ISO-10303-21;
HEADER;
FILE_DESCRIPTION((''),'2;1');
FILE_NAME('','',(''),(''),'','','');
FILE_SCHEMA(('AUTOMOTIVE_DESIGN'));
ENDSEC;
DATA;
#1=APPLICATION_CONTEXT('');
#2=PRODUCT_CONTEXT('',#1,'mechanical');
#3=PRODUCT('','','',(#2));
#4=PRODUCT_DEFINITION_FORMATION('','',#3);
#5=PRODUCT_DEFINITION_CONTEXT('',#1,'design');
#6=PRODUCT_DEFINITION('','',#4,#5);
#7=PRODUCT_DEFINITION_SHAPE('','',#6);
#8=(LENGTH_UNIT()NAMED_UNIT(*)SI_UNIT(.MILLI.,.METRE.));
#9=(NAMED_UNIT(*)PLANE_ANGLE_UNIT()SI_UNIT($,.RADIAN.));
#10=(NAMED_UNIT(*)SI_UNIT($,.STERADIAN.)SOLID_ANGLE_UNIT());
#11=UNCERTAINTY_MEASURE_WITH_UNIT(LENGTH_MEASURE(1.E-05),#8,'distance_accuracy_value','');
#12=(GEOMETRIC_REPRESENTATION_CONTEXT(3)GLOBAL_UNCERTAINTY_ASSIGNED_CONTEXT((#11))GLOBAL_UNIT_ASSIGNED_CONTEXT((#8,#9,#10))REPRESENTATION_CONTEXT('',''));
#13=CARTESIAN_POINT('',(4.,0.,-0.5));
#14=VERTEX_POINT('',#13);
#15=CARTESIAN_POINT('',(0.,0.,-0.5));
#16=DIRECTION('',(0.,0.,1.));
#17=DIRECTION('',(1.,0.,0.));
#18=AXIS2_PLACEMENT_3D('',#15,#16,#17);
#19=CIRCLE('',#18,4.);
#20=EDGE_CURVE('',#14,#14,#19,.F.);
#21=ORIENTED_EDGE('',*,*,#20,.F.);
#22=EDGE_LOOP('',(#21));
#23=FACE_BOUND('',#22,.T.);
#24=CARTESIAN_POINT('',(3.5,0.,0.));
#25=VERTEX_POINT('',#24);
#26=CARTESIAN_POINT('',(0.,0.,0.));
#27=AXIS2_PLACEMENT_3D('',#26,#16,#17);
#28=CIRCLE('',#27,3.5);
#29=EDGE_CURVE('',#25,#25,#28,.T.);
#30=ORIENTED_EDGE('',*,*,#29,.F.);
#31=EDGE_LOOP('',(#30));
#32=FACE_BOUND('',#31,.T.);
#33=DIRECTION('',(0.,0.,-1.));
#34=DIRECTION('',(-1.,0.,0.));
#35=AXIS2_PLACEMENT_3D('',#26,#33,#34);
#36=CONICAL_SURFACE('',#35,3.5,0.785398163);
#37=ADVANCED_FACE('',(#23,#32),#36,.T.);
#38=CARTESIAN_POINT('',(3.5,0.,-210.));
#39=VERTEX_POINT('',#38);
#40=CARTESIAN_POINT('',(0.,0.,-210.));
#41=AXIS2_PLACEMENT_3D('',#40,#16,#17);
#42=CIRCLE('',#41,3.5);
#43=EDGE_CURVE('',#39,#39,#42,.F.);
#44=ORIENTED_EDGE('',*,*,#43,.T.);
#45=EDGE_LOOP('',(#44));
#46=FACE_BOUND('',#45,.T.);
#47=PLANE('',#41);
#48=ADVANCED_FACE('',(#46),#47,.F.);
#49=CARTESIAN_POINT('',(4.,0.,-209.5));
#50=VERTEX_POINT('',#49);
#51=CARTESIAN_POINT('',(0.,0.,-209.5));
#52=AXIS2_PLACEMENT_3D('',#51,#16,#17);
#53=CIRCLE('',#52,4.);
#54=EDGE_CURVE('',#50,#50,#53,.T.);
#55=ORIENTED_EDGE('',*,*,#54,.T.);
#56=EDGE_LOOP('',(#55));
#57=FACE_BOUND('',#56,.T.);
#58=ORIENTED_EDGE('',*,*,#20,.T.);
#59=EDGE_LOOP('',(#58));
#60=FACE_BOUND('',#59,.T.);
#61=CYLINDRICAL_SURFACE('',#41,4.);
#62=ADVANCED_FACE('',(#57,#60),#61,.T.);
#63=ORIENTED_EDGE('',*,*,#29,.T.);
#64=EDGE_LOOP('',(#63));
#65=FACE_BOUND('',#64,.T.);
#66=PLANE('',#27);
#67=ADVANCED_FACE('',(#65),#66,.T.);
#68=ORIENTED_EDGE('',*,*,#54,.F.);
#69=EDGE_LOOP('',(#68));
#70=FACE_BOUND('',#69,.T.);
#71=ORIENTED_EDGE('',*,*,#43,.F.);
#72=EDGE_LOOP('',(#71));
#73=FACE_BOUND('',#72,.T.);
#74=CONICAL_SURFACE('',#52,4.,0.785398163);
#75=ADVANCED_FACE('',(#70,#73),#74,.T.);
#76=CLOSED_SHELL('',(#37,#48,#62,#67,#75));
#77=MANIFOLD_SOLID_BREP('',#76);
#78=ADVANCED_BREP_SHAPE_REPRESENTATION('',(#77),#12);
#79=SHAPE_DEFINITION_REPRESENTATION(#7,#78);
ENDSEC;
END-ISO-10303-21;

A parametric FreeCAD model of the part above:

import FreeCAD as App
import Part
import Sketcher
from FreeCAD import Vector


def edges_at(feature, points):
    """Names of the edges that pass closest to the given points."""
    edges = feature.Shape.Edges
    near = lambda p: min(range(len(edges)), key=lambda i: edges[i].distToShape(Part.Vertex(*p))[0])
    return sorted({f"Edge{near(p) + 1}" for p in points})

doc = App.newDocument("Part")
body = doc.addObject("PartDesign::Body", "Body")

# Sketch on XY plane
sketch1 = body.newObject("Sketcher::SketchObject", "Sketch")
sketch1.AttachmentSupport = (doc.getObject("XY_Plane"), [""])
sketch1.MapMode = "FlatFace"
sketch1.addGeometry(Part.Circle(Vector(0, 0, 0), Vector(0, 0, 1), 4), False)
sketch1.addConstraint([
    Sketcher.Constraint("Coincident", 0, 3, -1, 1),
    Sketcher.Constraint("Diameter", 0, 8.0),
])
pad1 = body.newObject("PartDesign::Pad", "Pad")
pad1.Profile = sketch1
pad1.Length = 210
pad1.Reversed = True
doc.recompute()

chamfer = body.newObject("PartDesign::Chamfer", "Chamfer")
chamfer.Base = (pad1, edges_at(pad1, [(-4, 0, 0), (-4, 0, -210)]))
chamfer.Size = 0.5

doc.recompute()
